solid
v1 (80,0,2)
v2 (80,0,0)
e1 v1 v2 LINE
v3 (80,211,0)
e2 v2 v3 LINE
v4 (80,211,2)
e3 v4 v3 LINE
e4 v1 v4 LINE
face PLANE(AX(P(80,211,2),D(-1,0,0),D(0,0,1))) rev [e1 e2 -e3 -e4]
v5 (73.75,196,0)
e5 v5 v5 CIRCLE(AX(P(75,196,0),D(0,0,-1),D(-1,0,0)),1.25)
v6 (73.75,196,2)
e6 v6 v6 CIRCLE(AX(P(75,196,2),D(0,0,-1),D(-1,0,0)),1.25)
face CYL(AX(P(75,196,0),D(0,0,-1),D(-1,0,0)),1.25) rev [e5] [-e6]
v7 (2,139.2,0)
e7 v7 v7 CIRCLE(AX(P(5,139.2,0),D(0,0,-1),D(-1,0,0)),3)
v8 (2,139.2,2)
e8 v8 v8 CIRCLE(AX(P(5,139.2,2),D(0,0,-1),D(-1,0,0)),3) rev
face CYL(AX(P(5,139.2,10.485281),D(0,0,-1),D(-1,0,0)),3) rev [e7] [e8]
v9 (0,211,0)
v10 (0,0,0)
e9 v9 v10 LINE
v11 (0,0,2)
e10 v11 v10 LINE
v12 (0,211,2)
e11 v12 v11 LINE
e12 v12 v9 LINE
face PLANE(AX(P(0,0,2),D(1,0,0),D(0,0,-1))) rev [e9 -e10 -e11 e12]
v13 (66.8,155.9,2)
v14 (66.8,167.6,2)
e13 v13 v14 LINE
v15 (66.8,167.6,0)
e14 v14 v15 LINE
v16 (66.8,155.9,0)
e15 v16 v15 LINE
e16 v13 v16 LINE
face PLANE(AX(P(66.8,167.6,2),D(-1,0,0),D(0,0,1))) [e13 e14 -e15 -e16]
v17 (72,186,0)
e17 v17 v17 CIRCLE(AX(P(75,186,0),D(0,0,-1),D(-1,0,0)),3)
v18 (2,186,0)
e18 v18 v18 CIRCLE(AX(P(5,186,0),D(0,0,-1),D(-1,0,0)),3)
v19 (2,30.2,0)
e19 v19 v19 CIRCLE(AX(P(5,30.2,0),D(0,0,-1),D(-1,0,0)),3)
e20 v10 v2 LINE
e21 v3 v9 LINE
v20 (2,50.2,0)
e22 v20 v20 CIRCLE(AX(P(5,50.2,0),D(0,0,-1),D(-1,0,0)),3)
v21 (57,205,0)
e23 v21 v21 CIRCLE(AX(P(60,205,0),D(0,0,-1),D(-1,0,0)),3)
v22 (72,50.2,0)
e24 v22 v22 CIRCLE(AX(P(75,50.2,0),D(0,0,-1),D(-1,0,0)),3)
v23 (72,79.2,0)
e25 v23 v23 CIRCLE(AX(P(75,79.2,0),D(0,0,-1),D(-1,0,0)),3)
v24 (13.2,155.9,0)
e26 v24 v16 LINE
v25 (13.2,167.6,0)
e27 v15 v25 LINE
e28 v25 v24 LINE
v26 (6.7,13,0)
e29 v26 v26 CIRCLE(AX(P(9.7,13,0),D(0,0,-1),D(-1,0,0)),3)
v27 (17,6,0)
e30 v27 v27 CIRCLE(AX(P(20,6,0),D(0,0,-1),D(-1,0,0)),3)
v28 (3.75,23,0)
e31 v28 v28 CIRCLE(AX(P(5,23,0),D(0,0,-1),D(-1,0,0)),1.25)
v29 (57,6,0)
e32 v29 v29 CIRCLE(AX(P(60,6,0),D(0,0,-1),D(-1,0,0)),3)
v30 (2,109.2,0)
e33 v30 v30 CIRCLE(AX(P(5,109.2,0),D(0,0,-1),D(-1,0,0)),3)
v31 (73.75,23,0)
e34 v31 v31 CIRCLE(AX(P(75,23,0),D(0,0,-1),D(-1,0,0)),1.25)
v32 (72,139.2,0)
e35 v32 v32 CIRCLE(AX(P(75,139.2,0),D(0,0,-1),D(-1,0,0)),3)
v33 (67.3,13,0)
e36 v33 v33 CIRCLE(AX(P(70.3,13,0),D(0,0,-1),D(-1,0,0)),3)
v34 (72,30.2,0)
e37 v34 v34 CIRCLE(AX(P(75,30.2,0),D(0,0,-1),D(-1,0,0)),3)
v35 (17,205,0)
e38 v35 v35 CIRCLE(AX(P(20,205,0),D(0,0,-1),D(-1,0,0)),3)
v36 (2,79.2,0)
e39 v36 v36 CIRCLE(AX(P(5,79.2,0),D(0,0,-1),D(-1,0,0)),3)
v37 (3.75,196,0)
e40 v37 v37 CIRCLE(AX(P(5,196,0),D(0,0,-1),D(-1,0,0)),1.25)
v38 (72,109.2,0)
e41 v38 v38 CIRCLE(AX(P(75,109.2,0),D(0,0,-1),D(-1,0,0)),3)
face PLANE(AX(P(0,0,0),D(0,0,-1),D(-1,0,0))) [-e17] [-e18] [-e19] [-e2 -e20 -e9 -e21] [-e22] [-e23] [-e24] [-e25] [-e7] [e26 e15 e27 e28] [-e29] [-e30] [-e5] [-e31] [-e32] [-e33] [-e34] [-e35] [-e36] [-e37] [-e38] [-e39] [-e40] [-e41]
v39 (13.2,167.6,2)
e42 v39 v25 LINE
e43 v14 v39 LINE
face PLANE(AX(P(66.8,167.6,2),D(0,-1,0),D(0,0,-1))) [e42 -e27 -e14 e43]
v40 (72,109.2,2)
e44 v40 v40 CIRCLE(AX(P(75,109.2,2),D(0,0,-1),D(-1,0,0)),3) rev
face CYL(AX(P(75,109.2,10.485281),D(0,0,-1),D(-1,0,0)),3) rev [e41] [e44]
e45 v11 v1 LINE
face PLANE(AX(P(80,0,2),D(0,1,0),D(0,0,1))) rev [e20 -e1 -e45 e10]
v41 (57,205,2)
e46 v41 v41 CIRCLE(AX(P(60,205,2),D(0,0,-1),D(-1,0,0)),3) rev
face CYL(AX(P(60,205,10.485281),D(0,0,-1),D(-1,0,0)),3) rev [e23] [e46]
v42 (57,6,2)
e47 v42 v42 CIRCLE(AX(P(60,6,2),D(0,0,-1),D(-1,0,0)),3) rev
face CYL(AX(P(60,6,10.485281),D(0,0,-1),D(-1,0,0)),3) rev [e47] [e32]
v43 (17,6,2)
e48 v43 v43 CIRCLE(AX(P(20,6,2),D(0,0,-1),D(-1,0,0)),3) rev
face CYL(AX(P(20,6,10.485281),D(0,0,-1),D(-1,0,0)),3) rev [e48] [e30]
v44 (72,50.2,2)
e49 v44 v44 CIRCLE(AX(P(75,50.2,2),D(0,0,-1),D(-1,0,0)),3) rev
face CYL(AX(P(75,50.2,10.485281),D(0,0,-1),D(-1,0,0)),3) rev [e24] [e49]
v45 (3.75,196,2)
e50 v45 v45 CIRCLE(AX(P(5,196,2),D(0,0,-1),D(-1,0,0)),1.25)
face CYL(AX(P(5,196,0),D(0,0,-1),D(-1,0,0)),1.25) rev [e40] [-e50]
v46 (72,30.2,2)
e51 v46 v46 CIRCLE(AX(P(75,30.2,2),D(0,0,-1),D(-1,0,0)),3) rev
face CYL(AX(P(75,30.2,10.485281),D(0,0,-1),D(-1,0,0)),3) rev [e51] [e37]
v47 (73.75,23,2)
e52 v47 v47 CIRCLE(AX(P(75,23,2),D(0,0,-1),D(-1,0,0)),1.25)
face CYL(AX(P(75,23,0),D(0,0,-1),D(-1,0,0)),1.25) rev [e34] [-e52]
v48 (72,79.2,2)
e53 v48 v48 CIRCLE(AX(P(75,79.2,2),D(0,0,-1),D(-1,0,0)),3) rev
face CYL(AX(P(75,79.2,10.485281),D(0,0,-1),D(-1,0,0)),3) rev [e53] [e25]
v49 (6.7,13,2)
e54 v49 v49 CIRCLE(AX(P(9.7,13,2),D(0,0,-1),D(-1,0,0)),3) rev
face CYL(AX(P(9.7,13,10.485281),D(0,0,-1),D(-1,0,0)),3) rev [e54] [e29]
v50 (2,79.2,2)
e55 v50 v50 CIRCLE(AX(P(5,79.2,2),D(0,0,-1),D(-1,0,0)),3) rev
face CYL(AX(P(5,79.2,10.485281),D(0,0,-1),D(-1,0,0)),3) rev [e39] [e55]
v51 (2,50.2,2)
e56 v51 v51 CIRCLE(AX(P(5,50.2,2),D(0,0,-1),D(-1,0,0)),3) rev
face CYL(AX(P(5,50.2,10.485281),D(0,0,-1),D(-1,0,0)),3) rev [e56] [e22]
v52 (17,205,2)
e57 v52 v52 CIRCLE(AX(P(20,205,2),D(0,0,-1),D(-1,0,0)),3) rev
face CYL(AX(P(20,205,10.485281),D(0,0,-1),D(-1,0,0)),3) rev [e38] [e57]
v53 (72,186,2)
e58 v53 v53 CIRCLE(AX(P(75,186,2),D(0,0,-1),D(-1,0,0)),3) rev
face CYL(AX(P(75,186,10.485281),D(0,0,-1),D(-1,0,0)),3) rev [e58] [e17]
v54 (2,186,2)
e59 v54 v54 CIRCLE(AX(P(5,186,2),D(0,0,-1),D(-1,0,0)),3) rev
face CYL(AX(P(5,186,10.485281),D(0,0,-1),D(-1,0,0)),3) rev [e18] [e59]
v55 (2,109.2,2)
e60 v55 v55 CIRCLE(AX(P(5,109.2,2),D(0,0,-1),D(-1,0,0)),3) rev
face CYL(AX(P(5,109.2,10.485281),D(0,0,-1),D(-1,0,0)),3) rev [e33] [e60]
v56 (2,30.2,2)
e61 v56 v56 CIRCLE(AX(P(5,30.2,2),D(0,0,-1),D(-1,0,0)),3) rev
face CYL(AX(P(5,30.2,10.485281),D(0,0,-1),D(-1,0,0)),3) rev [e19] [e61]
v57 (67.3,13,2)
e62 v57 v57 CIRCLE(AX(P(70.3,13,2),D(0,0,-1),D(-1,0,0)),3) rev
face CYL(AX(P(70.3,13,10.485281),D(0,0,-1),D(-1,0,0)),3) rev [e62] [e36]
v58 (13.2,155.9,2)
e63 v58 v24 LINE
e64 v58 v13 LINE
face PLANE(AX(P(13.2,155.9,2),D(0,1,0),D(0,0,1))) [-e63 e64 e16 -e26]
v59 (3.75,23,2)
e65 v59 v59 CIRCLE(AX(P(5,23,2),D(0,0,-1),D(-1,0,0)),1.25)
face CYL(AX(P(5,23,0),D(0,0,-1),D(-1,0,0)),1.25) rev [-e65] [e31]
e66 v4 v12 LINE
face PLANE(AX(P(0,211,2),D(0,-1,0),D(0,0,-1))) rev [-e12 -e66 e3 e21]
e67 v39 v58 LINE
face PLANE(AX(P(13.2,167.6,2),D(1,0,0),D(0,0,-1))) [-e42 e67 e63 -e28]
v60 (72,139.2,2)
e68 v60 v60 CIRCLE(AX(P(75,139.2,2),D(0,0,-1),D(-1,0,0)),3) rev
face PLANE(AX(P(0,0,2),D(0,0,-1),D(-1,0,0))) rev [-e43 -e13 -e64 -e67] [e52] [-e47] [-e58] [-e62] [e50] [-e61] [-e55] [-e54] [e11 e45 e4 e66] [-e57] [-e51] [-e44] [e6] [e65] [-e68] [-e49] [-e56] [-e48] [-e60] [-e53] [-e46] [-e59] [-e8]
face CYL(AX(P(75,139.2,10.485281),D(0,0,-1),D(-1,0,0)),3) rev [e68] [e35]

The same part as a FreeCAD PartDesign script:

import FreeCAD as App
import Part
import Sketcher


def add_polygon(sketch, points):
    """Adds a closed chain of lines whose ends are joined by coincident constraints."""
    first, n = sketch.GeometryCount, len(points)
    for a, b in zip(points, points[1:] + points[:1]):
        sketch.addGeometry(Part.LineSegment(App.Vector(*a, 0), App.Vector(*b, 0)), False)
    for i in range(n):
        sketch.addConstraint(Sketcher.Constraint("Coincident", first + i, 2, first + (i + 1) % n, 1))

doc = App.newDocument("Part")
body = doc.addObject("PartDesign::Body", "Body")

# Sketch on XY plane
sketch1 = doc.addObject("Sketcher::SketchObject", "Sketch")
body.addObject(sketch1)
sketch1.AttachmentSupport = (doc.XY_Plane, [""])
sketch1.MapMode = "FlatFace"
add_polygon(sketch1, [(0, 211), (0, 0), (80, 0), (80, 211)])  # lines 0-3
add_polygon(sketch1, [(67, 156), (13, 156), (13, 168), (67, 168)])  # lines 4-7
sketch1.addConstraint([
    Sketcher.Constraint("Vertical", 0),
    Sketcher.Constraint("Horizontal", 1),
    Sketcher.Constraint("Vertical", 2),
    Sketcher.Constraint("Horizontal", 3),
    Sketcher.Constraint("Horizontal", 4),
    Sketcher.Constraint("Vertical", 5),
    Sketcher.Constraint("Horizontal", 6),
    Sketcher.Constraint("Vertical", 7),
    Sketcher.Constraint("Coincident", 0, 2, -1, 1),
    Sketcher.Constraint("DistanceX", 1, 1, 1, 2, 80.0),
    Sketcher.Constraint("DistanceY", 0, 2, 0, 1, 211.0),
    Sketcher.Constraint("DistanceX", 4, 2, 4, 1, 53.6),
    Sketcher.Constraint("DistanceY", 5, 1, 5, 2, 11.7),
    Sketcher.Constraint("DistanceX", -1, 1, 4, 2, 13.2),
    Sketcher.Constraint("DistanceY", -1, 1, 4, 2, 155.9),
])
pad1 = doc.addObject("PartDesign::Pad", "Pad")
body.addObject(pad1)
pad1.Profile = sketch1
pad1.Length = 2

# Sketch on XY plane
sketch2 = doc.addObject("Sketcher::SketchObject", "Sketch001")
body.addObject(sketch2)
sketch2.AttachmentSupport = (doc.XY_Plane, [""])
sketch2.MapMode = "FlatFace"
sketch2.addGeometry([
    Part.Circle(App.Vector(75, 196, 0), App.Vector(0, 0, 1), 1.2),
    Part.Circle(App.Vector(5, 196, 0), App.Vector(0, 0, 1), 1.2),
    Part.Circle(App.Vector(75, 23, 0), App.Vector(0, 0, 1), 1.2),
    Part.Circle(App.Vector(5, 23, 0), App.Vector(0, 0, 1), 1.2),
], False)
sketch2.addConstraint([
    Sketcher.Constraint("Equal", 0, 1),
    Sketcher.Constraint("Equal", 1, 2),
    Sketcher.Constraint("Equal", 2, 3),
    Sketcher.Constraint("Horizontal", 0, 3, 1, 3),
    Sketcher.Constraint("Horizontal", 2, 3, 3, 3),
    Sketcher.Constraint("Vertical", 0, 3, 2, 3),
    Sketcher.Constraint("Vertical", 1, 3, 3, 3),
    Sketcher.Constraint("Diameter", 0, 2.5),
    Sketcher.Constraint("DistanceX", -1, 1, 0, 3, 75.0),
    Sketcher.Constraint("DistanceY", -1, 1, 0, 3, 196.0),
    Sketcher.Constraint("DistanceX", -1, 1, 1, 3, 5.0),
    Sketcher.Constraint("DistanceY", -1, 1, 2, 3, 23.0),
])
doc.recompute()
hole = doc.addObject("PartDesign::Hole", "Hole")
body.addObject(hole)
hole.Profile = sketch2
hole.ThreadType = "None"
hole.Diameter = 2.5
hole.DepthType = "Dimension"
hole.Depth = 10
hole.DrillPoint = "Angled"
hole.DrillPointAngle = 118
hole.Reversed = True

# Sketch on XY plane
sketch3 = doc.addObject("Sketcher::SketchObject", "Sketch002")
body.addObject(sketch3)
sketch3.AttachmentSupport = (doc.XY_Plane, [""])
sketch3.MapMode = "FlatFace"
sketch3.addGeometry([
    Part.Circle(App.Vector(75, 186, 0), App.Vector(0, 0, 1), 3),  # 0
    Part.Circle(App.Vector(75, 139.2, 0), App.Vector(0, 0, 1), 3),  # 1
    Part.Circle(App.Vector(75, 109.2, 0), App.Vector(0, 0, 1), 3),  # 2
    Part.Circle(App.Vector(75, 79.2, 0), App.Vector(0, 0, 1), 3),  # 3
    Part.Circle(App.Vector(75, 50.2, 0), App.Vector(0, 0, 1), 3),  # 4
    Part.Circle(App.Vector(75, 30.2, 0), App.Vector(0, 0, 1), 3),  # 5
    Part.Circle(App.Vector(5, 186, 0), App.Vector(0, 0, 1), 3),  # 6
    Part.Circle(App.Vector(5, 139.2, 0), App.Vector(0, 0, 1), 3),  # 7
    Part.Circle(App.Vector(5, 109.2, 0), App.Vector(0, 0, 1), 3),  # 8
    Part.Circle(App.Vector(5, 79.2, 0), App.Vector(0, 0, 1), 3),  # 9
    Part.Circle(App.Vector(5, 50.2, 0), App.Vector(0, 0, 1), 3),  # 10
    Part.Circle(App.Vector(5, 30.2, 0), App.Vector(0, 0, 1), 3),  # 11
    Part.Circle(App.Vector(70.3, 13, 0), App.Vector(0, 0, 1), 3),  # 12
    Part.Circle(App.Vector(60, 205, 0), App.Vector(0, 0, 1), 3),  # 13
    Part.Circle(App.Vector(20, 205, 0), App.Vector(0, 0, 1), 3),  # 14
    Part.Circle(App.Vector(60, 6, 0), App.Vector(0, 0, 1), 3),  # 15
    Part.Circle(App.Vector(20, 6, 0), App.Vector(0, 0, 1), 3),  # 16
    Part.Circle(App.Vector(9.7, 13, 0), App.Vector(0, 0, 1), 3),  # 17
], False)
sketch3.addConstraint([
    Sketcher.Constraint("Equal", 0, 1),
    Sketcher.Constraint("Equal", 1, 2),
    Sketcher.Constraint("Equal", 2, 3),
    Sketcher.Constraint("Equal", 3, 4),
    Sketcher.Constraint("Equal", 4, 5),
    Sketcher.Constraint("Equal", 5, 6),
    Sketcher.Constraint("Equal", 6, 7),
    Sketcher.Constraint("Equal", 7, 8),
    Sketcher.Constraint("Equal", 8, 9),
    Sketcher.Constraint("Equal", 9, 10),
    Sketcher.Constraint("Equal", 10, 11),
    Sketcher.Constraint("Equal", 11, 12),
    Sketcher.Constraint("Equal", 12, 13),
    Sketcher.Constraint("Equal", 13, 14),
    Sketcher.Constraint("Equal", 14, 15),
    Sketcher.Constraint("Equal", 15, 16),
    Sketcher.Constraint("Equal", 16, 17),
    Sketcher.Constraint("Horizontal", 0, 3, 6, 3),
    Sketcher.Constraint("Horizontal", 1, 3, 7, 3),
    Sketcher.Constraint("Horizontal", 2, 3, 8, 3),
    Sketcher.Constraint("Horizontal", 3, 3, 9, 3),
    Sketcher.Constraint("Horizontal", 4, 3, 10, 3),
    Sketcher.Constraint("Horizontal", 5, 3, 11, 3),
    Sketcher.Constraint("Horizontal", 13, 3, 14, 3),
    Sketcher.Constraint("Horizontal", 15, 3, 16, 3),
    Sketcher.Constraint("Horizontal", 12, 3, 17, 3),
    Sketcher.Constraint("Vertical", 0, 3, 1, 3),
    Sketcher.Constraint("Vertical", 1, 3, 2, 3),
    Sketcher.Constraint("Vertical", 2, 3, 3, 3),
    Sketcher.Constraint("Vertical", 3, 3, 4, 3),
    Sketcher.Constraint("Vertical", 4, 3, 5, 3),
    Sketcher.Constraint("Vertical", 6, 3, 7, 3),
    Sketcher.Constraint("Vertical", 7, 3, 8, 3),
    Sketcher.Constraint("Vertical", 8, 3, 9, 3),
    Sketcher.Constraint("Vertical", 9, 3, 10, 3),
    Sketcher.Constraint("Vertical", 10, 3, 11, 3),
    Sketcher.Constraint("Vertical", 13, 3, 15, 3),
    Sketcher.Constraint("Vertical", 14, 3, 16, 3),
    Sketcher.Constraint("Diameter", 0, 6.0),
    Sketcher.Constraint("DistanceX", -1, 1, 0, 3, 75.0),
    Sketcher.Constraint("DistanceY", -1, 1, 0, 3, 186.0),
    Sketcher.Constraint("DistanceX", -1, 1, 6, 3, 5.0),
    Sketcher.Constraint("DistanceY", -1, 1, 12, 3, 13.0),
    Sketcher.Constraint("DistanceX", -1, 1, 13, 3, 60.0),
    Sketcher.Constraint("DistanceY", -1, 1, 13, 3, 205.0),
    Sketcher.Constraint("DistanceX", -1, 1, 14, 3, 20.0),
    Sketcher.Constraint("DistanceY", -1, 1, 15, 3, 6.0),
    Sketcher.Constraint("DistanceY", 2, 3, 1, 3, 30.0),
    Sketcher.Constraint("DistanceY", 3, 3, 2, 3, 30.0),
    Sketcher.Constraint("DistanceY", 4, 3, 3, 3, 29.0),
    Sketcher.Constraint("DistanceY", 5, 3, 4, 3, 20.0),
    Sketcher.Constraint("DistanceY", -1, 1, 1, 3, 139.2),
    Sketcher.Constraint("DistanceX", -1, 1, 12, 3, 70.3),
    Sketcher.Constraint("DistanceX", -1, 1, 17, 3, 9.7),
])
pocket1 = doc.addObject("PartDesign::Pocket", "Pocket")
body.addObject(pocket1)
pocket1.Profile = sketch3
pocket1.Length = 2
pocket1.Reversed = True

doc.recompute()
